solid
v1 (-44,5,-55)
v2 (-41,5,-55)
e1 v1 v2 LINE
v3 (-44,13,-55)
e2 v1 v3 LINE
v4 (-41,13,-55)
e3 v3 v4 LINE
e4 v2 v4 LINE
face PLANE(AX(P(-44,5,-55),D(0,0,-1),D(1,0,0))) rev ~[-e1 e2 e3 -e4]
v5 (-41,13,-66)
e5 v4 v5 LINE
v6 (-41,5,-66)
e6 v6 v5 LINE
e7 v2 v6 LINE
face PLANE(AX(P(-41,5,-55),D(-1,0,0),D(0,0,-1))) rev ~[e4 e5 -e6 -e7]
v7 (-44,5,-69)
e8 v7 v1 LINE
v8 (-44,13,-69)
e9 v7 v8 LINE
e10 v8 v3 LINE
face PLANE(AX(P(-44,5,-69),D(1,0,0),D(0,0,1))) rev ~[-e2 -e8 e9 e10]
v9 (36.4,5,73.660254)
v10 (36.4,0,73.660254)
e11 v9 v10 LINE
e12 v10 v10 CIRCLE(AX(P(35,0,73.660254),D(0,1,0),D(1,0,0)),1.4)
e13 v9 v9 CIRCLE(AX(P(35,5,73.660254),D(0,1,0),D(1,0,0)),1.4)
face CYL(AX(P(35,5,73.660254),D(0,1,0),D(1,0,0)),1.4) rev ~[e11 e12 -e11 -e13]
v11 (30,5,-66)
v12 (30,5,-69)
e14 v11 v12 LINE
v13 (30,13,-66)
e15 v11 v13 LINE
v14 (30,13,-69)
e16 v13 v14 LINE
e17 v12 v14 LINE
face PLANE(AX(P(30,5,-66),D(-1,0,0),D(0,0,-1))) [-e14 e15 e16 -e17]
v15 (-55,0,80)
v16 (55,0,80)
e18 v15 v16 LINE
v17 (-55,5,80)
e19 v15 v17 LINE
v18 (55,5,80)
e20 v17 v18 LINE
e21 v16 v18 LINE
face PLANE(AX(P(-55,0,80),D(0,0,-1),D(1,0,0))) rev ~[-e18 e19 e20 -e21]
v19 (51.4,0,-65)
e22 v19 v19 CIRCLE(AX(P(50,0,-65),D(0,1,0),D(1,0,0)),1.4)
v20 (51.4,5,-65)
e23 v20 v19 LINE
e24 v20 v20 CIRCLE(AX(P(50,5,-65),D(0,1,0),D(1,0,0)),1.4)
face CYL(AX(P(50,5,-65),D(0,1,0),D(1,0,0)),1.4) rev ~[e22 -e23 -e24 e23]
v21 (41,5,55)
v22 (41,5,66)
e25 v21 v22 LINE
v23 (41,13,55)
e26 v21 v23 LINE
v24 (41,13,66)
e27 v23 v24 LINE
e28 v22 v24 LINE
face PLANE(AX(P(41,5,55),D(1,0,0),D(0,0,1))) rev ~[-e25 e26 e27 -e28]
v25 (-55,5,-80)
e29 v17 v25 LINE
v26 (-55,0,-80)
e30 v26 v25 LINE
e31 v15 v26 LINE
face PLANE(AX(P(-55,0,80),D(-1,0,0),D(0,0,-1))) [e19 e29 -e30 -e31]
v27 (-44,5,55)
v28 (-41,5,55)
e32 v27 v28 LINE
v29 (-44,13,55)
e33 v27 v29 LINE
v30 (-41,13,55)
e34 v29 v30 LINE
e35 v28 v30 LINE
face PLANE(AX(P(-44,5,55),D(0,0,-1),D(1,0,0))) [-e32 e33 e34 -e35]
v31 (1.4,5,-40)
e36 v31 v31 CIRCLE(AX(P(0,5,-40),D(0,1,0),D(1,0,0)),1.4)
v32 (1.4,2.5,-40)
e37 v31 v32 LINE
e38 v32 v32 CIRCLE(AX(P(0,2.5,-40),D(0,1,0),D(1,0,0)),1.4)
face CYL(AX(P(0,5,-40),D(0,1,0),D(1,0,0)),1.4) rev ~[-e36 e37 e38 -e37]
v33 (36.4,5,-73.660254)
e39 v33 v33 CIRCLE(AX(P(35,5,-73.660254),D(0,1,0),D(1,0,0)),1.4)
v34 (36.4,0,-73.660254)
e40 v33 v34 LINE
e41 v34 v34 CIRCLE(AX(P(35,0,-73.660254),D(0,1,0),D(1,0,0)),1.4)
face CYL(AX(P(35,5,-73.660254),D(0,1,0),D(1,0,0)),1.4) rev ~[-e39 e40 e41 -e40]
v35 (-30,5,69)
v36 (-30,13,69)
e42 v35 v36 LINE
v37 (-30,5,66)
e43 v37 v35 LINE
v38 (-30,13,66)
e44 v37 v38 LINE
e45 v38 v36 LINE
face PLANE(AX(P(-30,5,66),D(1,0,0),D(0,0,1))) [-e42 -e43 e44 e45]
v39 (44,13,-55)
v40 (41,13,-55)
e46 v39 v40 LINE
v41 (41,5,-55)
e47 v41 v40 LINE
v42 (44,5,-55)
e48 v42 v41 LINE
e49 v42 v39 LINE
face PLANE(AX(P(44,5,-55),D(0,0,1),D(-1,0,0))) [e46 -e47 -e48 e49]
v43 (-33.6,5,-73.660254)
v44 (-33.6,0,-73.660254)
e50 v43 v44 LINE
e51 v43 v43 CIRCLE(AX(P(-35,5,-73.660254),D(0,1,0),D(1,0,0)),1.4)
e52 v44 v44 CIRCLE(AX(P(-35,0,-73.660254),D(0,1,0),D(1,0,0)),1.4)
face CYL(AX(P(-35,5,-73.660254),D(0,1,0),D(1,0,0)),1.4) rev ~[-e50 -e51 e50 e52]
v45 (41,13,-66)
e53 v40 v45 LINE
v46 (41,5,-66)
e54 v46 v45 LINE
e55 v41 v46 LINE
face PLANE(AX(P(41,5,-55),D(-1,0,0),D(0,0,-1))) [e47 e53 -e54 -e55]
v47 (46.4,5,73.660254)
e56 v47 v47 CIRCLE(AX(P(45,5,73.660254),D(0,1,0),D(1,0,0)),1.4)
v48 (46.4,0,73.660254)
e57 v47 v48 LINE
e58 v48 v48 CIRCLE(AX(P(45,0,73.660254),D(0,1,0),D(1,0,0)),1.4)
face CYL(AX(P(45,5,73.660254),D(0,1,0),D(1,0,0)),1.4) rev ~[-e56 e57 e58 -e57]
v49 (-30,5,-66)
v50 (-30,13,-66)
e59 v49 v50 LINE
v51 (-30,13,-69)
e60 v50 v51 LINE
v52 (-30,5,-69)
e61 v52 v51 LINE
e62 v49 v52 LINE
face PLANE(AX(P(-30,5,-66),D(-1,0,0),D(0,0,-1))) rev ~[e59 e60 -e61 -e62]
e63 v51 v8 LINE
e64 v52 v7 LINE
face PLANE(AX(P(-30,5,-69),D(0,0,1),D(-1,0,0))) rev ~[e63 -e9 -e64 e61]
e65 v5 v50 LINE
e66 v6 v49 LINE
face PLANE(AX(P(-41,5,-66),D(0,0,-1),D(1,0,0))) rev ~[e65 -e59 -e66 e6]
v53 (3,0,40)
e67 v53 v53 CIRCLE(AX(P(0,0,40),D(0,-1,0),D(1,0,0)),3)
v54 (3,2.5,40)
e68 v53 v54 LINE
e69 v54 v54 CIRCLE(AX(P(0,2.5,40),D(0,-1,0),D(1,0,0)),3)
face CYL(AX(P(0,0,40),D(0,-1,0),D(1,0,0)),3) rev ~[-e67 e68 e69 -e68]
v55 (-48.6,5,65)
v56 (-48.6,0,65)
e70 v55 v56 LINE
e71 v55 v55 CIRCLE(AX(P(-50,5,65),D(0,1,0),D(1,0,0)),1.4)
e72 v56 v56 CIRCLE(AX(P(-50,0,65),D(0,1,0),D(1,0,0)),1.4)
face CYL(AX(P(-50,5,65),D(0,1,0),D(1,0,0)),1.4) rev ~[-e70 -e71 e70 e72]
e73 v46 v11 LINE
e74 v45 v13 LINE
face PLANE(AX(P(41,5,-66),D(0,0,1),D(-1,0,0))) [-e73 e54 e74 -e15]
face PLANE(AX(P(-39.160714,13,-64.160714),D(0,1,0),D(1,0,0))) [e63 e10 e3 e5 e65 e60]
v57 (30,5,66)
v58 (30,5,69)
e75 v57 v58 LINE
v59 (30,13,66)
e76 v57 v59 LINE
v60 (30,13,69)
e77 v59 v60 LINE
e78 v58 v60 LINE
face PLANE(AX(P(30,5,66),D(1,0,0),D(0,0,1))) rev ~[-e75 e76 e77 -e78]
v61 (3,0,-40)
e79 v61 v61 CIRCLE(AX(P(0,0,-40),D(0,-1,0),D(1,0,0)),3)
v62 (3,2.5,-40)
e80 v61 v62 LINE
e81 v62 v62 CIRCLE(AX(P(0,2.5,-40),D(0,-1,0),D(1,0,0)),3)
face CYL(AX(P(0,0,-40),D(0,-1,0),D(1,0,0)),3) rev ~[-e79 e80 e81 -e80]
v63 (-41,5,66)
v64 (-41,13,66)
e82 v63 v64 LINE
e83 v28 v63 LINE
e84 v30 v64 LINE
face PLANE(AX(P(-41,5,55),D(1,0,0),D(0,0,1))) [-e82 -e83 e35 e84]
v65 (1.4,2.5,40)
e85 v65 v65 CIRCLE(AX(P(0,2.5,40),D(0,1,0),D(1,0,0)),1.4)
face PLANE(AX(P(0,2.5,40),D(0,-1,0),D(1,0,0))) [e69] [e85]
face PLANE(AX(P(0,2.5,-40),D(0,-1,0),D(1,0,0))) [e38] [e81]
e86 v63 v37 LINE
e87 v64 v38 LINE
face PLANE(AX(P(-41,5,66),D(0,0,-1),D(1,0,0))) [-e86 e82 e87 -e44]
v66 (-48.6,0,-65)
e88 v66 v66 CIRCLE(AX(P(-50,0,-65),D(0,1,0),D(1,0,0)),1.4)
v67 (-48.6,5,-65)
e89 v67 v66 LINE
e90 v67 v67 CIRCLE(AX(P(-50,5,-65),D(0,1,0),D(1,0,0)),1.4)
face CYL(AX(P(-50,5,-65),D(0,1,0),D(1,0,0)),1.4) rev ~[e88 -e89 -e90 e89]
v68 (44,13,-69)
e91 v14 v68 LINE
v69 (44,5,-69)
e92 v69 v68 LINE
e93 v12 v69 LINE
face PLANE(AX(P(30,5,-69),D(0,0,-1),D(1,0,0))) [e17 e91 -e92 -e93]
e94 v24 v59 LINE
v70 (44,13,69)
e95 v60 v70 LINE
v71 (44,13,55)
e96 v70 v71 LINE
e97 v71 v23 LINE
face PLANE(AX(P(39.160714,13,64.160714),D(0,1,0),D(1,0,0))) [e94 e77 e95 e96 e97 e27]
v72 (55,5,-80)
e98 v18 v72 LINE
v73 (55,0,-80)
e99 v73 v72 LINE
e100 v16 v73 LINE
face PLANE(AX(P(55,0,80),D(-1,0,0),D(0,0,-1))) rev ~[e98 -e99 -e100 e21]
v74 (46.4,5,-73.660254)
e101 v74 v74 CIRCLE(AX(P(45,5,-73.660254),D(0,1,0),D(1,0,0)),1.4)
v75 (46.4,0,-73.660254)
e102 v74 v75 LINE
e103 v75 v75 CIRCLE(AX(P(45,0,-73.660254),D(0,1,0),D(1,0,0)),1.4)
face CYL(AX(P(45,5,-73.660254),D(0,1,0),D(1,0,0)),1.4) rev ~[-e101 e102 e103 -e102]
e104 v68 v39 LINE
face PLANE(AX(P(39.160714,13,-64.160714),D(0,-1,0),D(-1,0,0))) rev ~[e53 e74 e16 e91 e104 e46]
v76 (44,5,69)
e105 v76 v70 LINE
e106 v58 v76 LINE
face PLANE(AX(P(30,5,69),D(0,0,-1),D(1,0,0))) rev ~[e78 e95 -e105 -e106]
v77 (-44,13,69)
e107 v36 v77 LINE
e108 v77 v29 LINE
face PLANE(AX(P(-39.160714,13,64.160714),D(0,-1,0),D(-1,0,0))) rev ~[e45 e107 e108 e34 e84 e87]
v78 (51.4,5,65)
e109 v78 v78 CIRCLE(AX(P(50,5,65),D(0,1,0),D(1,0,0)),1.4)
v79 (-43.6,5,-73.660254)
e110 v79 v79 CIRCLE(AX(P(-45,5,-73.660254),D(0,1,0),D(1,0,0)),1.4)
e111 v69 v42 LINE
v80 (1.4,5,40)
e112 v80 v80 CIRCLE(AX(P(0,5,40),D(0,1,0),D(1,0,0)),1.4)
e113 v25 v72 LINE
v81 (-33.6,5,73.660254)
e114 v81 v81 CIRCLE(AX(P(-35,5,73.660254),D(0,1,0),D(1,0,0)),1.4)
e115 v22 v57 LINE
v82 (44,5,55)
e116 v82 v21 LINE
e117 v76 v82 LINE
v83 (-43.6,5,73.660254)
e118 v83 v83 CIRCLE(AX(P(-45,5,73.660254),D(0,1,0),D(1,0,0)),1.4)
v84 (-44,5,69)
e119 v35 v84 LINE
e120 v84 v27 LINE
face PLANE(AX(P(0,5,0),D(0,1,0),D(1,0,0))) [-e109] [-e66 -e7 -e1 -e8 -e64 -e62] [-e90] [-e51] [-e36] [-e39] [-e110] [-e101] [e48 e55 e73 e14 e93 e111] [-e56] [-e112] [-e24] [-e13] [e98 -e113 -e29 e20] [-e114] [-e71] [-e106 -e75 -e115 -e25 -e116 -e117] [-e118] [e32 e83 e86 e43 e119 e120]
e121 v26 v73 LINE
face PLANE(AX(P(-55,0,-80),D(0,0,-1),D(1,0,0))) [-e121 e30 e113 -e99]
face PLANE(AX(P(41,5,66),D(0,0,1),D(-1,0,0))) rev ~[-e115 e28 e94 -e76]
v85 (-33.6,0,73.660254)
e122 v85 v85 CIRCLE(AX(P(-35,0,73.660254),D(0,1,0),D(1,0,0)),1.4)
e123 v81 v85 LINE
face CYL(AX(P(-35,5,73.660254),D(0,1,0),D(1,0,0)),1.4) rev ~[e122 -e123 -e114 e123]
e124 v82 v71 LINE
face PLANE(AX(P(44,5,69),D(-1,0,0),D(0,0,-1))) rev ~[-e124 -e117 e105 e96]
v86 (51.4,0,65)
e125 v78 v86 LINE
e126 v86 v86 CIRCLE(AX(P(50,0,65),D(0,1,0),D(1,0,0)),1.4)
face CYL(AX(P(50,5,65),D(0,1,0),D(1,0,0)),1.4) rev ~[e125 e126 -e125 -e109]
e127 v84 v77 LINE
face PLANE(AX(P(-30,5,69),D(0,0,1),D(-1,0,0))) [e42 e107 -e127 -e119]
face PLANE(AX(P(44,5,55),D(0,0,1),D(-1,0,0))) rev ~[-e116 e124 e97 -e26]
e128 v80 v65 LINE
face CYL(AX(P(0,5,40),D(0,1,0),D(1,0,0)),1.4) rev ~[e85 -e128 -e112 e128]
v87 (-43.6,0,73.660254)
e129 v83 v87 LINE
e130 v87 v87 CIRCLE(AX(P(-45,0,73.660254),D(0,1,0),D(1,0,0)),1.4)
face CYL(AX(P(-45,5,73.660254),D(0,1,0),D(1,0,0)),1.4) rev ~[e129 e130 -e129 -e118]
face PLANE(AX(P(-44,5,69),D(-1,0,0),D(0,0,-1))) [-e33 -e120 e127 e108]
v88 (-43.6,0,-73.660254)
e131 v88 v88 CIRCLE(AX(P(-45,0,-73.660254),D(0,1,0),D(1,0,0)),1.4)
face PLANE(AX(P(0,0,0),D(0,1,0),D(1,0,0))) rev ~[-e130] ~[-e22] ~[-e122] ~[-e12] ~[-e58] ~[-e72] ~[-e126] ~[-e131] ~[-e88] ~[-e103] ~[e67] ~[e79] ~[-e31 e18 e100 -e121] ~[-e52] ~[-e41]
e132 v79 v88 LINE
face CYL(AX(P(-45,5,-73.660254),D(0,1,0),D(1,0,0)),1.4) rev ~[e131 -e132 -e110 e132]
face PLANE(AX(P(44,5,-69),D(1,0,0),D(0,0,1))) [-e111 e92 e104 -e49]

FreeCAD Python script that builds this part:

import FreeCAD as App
import Part
import Sketcher

V = App.Vector
Q = App.Units.Quantity


def add_polygon(sketch, points):
    """Adds a closed chain of lines whose ends are joined by coincident constraints."""
    first, n = sketch.GeometryCount, len(points)
    for a, b in zip(points, points[1:] + points[:1]):
        sketch.addGeometry(Part.LineSegment(App.Vector(*a, 0), App.Vector(*b, 0)), False)
    for i in range(n):
        sketch.addConstraint(Sketcher.Constraint("Coincident", first + i, 2, first + (i + 1) % n, 1))

doc = App.newDocument("Part")
body = doc.addObject("PartDesign::Body", "Body")

# Sketch on XZ plane
sketch1 = body.newObject("Sketcher::SketchObject", "Sketch")
sketch1.AttachmentSupport = (doc.getObject("XZ_Plane"), [""])
sketch1.MapMode = "FlatFace"
add_polygon(sketch1, [(-55, -80), (-55, 80), (55, 80), (55, -80)])  # lines 0-3
sketch1.addConstraint([
    Sketcher.Constraint("Vertical", 0),
    Sketcher.Constraint("Horizontal", 1),
    Sketcher.Constraint("Vertical", 2),
    Sketcher.Constraint("Horizontal", 3),
    Sketcher.Constraint("Symmetric", 0, 2, 2, 2, -1, 1),
    Sketcher.Constraint("DistanceX", 1, 1, 1, 2, Q("110 mm")),
    Sketcher.Constraint("DistanceY", 0, 1, 0, 2, Q("160 mm")),
])
pad1 = body.newObject("PartDesign::Pad", "Pad")
pad1.Profile = sketch1
pad1.Length = 5
pad1.Reversed = True

# Sketch on XZ plane
sketch2 = body.newObject("Sketcher::SketchObject", "Sketch001")
sketch2.AttachmentSupport = (doc.getObject("XZ_Plane"), [""])
sketch2.MapMode = "FlatFace"
sketch2.AttachmentOffset = App.Placement(V(0, 0, -5), App.Rotation())
sketch2.addGeometry([
    Part.Circle(V(-50, -65, 0), V(0, 0, 1), 1.4),  # 0
    Part.Circle(V(-45, -73.7, 0), V(0, 0, 1), 1.4),  # 1
    Part.Circle(V(-35, -73.7, 0), V(0, 0, 1), 1.4),  # 2
    Part.Circle(V(-50, 65, 0), V(0, 0, 1), 1.4),  # 3
    Part.Circle(V(-45, 73.7, 0), V(0, 0, 1), 1.4),  # 4
    Part.Circle(V(-35, 73.7, 0), V(0, 0, 1), 1.4),  # 5
    Part.Circle(V(35, -73.7, 0), V(0, 0, 1), 1.4),  # 6
    Part.Circle(V(45, -73.7, 0), V(0, 0, 1), 1.4),  # 7
    Part.Circle(V(50, -65, 0), V(0, 0, 1), 1.4),  # 8
    Part.Circle(V(35, 73.7, 0), V(0, 0, 1), 1.4),  # 9
    Part.Circle(V(45, 73.7, 0), V(0, 0, 1), 1.4),  # 10
    Part.Circle(V(50, 65, 0), V(0, 0, 1), 1.4),  # 11
    Part.Circle(V(0, -40, 0), V(0, 0, 1), 1.4),  # 12
    Part.Circle(V(0, 40, 0), V(0, 0, 1), 1.4),  # 13
], False)
sketch2.addConstraint([
    Sketcher.Constraint("Equal", 0, 1),
    Sketcher.Constraint("Equal", 1, 2),
    Sketcher.Constraint("Equal", 2, 3),
    Sketcher.Constraint("Equal", 3, 4),
    Sketcher.Constraint("Equal", 4, 5),
    Sketcher.Constraint("Equal", 5, 6),
    Sketcher.Constraint("Equal", 6, 7),
    Sketcher.Constraint("Equal", 7, 8),
    Sketcher.Constraint("Equal", 8, 9),
    Sketcher.Constraint("Equal", 9, 10),
    Sketcher.Constraint("Equal", 10, 11),
    Sketcher.Constraint("Equal", 11, 12),
    Sketcher.Constraint("Equal", 12, 13),
    Sketcher.Constraint("Symmetric", 5, 3, 6, 3, -1, 1),
    Sketcher.Constraint("Symmetric", 4, 3, 7, 3, -1, 1),
    Sketcher.Constraint("Symmetric", 3, 3, 8, 3, -1, 1),
    Sketcher.Constraint("Symmetric", 2, 3, 9, 3, -1, 1),
    Sketcher.Constraint("Symmetric", 1, 3, 10, 3, -1, 1),
    Sketcher.Constraint("Symmetric", 0, 3, 11, 3, -1, 1),
    Sketcher.Constraint("Symmetric", 12, 3, 13, 3, -1, 1),
    Sketcher.Constraint("Symmetric", 2, 3, 6, 3, -2),
    Sketcher.Constraint("Symmetric", 1, 3, 7, 3, -2),
    Sketcher.Constraint("Symmetric", 0, 3, 8, 3, -2),
    Sketcher.Constraint("PointOnObject", 12, 3, -2),
    Sketcher.Constraint("Horizontal", 1, 3, 2, 3),
    Sketcher.Constraint("Diameter", 0, Q("2.8 mm")),
    Sketcher.Constraint("DistanceX", 0, 3, -1, 1, Q("50 mm")),
    Sketcher.Constraint("DistanceY", 0, 3, -1, 1, Q("65 mm")),
    Sketcher.Constraint("DistanceX", 1, 3, -1, 1, Q("45 mm")),
    Sketcher.Constraint("DistanceX", 2, 3, -1, 1, Q("35 mm")),
    Sketcher.Constraint("DistanceY", 12, 3, -1, 1, Q("40 mm")),
    Sketcher.Constraint("DistanceY", 1, 3, 4, 3, Q("147.320508 mm")),
])
pocket1 = body.newObject("PartDesign::Pocket", "Pocket")
pocket1.Profile = sketch2
pocket1.Length = 5
pocket1.Reversed = True

# Sketch on XZ plane
sketch3 = body.newObject("Sketcher::SketchObject", "Sketch002")
sketch3.AttachmentSupport = (doc.getObject("XZ_Plane"), [""])
sketch3.MapMode = "FlatFace"
sketch3.AttachmentOffset = App.Placement(V(0, 0, -5), App.Rotation())
add_polygon(sketch3, [(30, -66), (41, -66), (41, -55), (44, -55), (44, -69), (30, -69)])  # lines 0-5
add_polygon(sketch3, [(44, 55), (41, 55), (41, 66), (30, 66), (30, 69), (44, 69)])  # lines 6-11
add_polygon(sketch3, [(-44, -55), (-41, -55), (-41, -66), (-30, -66), (-30, -69), (-44, -69)])  # lines 12-17
add_polygon(sketch3, [(-41, 55), (-44, 55), (-44, 69), (-30, 69), (-30, 66), (-41, 66)])  # lines 18-23
sketch3.addConstraint([
    Sketcher.Constraint("Horizontal", 0),
    Sketcher.Constraint("Vertical", 1),
    Sketcher.Constraint("Horizontal", 2),
    Sketcher.Constraint("Vertical", 3),
    Sketcher.Constraint("Horizontal", 4),
    Sketcher.Constraint("Vertical", 5),
    Sketcher.Constraint("Horizontal", 6),
    Sketcher.Constraint("Vertical", 7),
    Sketcher.Constraint("Horizontal", 8),
    Sketcher.Constraint("Vertical", 9),
    Sketcher.Constraint("Horizontal", 10),
    Sketcher.Constraint("Vertical", 11),
    Sketcher.Constraint("Horizontal", 12),
    Sketcher.Constraint("Vertical", 13),
    Sketcher.Constraint("Horizontal", 14),
    Sketcher.Constraint("Vertical", 15),
    Sketcher.Constraint("Horizontal", 16),
    Sketcher.Constraint("Vertical", 17),
    Sketcher.Constraint("Horizontal", 18),
    Sketcher.Constraint("Vertical", 19),
    Sketcher.Constraint("Horizontal", 20),
    Sketcher.Constraint("Vertical", 21),
    Sketcher.Constraint("Horizontal", 22),
    Sketcher.Constraint("Vertical", 23),
    Sketcher.Constraint("Symmetric", 6, 2, 12, 2, -1, 1),
    Sketcher.Constraint("Symmetric", 8, 2, 14, 2, -1, 1),
    Sketcher.Constraint("Symmetric", 10, 2, 16, 2, -1, 1),
    Sketcher.Constraint("Symmetric", 2, 2, 18, 2, -1, 1),
    Sketcher.Constraint("Symmetric", 4, 2, 20, 2, -1, 1),
    Sketcher.Constraint("Symmetric", 0, 2, 22, 2, -1, 1),
    Sketcher.Constraint("Symmetric", 1, 2, 12, 2, -2),
    Sketcher.Constraint("Symmetric", 5, 2, 14, 2, -2),
    Sketcher.Constraint("Symmetric", 3, 2, 16, 2, -2),
    Sketcher.Constraint("Equal", 22, 1),
    Sketcher.Constraint("Equal", 20, 3),
    Sketcher.Constraint("DistanceX", 0, 1, 0, 2, Q("11 mm")),
    Sketcher.Constraint("DistanceX", 2, 1, 2, 2, Q("3 mm")),
    Sketcher.Constraint("DistanceX", -1, 1, 0, 2, Q("41 mm")),
    Sketcher.Constraint("DistanceY", 0, 2, -1, 1, Q("66 mm")),
])
pad2 = body.newObject("PartDesign::Pad", "Pad001")
pad2.Profile = sketch3
pad2.Length = 8
pad2.Reversed = True

# Sketch on XZ plane
sketch4 = body.newObject("Sketcher::SketchObject", "Sketch003")
sketch4.AttachmentSupport = (doc.getObject("XZ_Plane"), [""])
sketch4.MapMode = "FlatFace"
sketch4.addGeometry([
    Part.Circle(V(0, 40, 0), V(0, 0, 1), 3),
    Part.Circle(V(0, -40, 0), V(0, 0, 1), 3),
], False)
sketch4.addConstraint([
    Sketcher.Constraint("Equal", 0, 1),
    Sketcher.Constraint("Symmetric", 0, 3, 1, 3, -1, 1),
    Sketcher.Constraint("PointOnObject", 0, 3, -2),
    Sketcher.Constraint("Diameter", 0, Q("6 mm")),
    Sketcher.Constraint("DistanceY", -1, 1, 0, 3, Q("40 mm")),
])
pocket2 = body.newObject("PartDesign::Pocket", "Pocket001")
pocket2.Profile = sketch4
pocket2.Length = 2.5

doc.recompute()
